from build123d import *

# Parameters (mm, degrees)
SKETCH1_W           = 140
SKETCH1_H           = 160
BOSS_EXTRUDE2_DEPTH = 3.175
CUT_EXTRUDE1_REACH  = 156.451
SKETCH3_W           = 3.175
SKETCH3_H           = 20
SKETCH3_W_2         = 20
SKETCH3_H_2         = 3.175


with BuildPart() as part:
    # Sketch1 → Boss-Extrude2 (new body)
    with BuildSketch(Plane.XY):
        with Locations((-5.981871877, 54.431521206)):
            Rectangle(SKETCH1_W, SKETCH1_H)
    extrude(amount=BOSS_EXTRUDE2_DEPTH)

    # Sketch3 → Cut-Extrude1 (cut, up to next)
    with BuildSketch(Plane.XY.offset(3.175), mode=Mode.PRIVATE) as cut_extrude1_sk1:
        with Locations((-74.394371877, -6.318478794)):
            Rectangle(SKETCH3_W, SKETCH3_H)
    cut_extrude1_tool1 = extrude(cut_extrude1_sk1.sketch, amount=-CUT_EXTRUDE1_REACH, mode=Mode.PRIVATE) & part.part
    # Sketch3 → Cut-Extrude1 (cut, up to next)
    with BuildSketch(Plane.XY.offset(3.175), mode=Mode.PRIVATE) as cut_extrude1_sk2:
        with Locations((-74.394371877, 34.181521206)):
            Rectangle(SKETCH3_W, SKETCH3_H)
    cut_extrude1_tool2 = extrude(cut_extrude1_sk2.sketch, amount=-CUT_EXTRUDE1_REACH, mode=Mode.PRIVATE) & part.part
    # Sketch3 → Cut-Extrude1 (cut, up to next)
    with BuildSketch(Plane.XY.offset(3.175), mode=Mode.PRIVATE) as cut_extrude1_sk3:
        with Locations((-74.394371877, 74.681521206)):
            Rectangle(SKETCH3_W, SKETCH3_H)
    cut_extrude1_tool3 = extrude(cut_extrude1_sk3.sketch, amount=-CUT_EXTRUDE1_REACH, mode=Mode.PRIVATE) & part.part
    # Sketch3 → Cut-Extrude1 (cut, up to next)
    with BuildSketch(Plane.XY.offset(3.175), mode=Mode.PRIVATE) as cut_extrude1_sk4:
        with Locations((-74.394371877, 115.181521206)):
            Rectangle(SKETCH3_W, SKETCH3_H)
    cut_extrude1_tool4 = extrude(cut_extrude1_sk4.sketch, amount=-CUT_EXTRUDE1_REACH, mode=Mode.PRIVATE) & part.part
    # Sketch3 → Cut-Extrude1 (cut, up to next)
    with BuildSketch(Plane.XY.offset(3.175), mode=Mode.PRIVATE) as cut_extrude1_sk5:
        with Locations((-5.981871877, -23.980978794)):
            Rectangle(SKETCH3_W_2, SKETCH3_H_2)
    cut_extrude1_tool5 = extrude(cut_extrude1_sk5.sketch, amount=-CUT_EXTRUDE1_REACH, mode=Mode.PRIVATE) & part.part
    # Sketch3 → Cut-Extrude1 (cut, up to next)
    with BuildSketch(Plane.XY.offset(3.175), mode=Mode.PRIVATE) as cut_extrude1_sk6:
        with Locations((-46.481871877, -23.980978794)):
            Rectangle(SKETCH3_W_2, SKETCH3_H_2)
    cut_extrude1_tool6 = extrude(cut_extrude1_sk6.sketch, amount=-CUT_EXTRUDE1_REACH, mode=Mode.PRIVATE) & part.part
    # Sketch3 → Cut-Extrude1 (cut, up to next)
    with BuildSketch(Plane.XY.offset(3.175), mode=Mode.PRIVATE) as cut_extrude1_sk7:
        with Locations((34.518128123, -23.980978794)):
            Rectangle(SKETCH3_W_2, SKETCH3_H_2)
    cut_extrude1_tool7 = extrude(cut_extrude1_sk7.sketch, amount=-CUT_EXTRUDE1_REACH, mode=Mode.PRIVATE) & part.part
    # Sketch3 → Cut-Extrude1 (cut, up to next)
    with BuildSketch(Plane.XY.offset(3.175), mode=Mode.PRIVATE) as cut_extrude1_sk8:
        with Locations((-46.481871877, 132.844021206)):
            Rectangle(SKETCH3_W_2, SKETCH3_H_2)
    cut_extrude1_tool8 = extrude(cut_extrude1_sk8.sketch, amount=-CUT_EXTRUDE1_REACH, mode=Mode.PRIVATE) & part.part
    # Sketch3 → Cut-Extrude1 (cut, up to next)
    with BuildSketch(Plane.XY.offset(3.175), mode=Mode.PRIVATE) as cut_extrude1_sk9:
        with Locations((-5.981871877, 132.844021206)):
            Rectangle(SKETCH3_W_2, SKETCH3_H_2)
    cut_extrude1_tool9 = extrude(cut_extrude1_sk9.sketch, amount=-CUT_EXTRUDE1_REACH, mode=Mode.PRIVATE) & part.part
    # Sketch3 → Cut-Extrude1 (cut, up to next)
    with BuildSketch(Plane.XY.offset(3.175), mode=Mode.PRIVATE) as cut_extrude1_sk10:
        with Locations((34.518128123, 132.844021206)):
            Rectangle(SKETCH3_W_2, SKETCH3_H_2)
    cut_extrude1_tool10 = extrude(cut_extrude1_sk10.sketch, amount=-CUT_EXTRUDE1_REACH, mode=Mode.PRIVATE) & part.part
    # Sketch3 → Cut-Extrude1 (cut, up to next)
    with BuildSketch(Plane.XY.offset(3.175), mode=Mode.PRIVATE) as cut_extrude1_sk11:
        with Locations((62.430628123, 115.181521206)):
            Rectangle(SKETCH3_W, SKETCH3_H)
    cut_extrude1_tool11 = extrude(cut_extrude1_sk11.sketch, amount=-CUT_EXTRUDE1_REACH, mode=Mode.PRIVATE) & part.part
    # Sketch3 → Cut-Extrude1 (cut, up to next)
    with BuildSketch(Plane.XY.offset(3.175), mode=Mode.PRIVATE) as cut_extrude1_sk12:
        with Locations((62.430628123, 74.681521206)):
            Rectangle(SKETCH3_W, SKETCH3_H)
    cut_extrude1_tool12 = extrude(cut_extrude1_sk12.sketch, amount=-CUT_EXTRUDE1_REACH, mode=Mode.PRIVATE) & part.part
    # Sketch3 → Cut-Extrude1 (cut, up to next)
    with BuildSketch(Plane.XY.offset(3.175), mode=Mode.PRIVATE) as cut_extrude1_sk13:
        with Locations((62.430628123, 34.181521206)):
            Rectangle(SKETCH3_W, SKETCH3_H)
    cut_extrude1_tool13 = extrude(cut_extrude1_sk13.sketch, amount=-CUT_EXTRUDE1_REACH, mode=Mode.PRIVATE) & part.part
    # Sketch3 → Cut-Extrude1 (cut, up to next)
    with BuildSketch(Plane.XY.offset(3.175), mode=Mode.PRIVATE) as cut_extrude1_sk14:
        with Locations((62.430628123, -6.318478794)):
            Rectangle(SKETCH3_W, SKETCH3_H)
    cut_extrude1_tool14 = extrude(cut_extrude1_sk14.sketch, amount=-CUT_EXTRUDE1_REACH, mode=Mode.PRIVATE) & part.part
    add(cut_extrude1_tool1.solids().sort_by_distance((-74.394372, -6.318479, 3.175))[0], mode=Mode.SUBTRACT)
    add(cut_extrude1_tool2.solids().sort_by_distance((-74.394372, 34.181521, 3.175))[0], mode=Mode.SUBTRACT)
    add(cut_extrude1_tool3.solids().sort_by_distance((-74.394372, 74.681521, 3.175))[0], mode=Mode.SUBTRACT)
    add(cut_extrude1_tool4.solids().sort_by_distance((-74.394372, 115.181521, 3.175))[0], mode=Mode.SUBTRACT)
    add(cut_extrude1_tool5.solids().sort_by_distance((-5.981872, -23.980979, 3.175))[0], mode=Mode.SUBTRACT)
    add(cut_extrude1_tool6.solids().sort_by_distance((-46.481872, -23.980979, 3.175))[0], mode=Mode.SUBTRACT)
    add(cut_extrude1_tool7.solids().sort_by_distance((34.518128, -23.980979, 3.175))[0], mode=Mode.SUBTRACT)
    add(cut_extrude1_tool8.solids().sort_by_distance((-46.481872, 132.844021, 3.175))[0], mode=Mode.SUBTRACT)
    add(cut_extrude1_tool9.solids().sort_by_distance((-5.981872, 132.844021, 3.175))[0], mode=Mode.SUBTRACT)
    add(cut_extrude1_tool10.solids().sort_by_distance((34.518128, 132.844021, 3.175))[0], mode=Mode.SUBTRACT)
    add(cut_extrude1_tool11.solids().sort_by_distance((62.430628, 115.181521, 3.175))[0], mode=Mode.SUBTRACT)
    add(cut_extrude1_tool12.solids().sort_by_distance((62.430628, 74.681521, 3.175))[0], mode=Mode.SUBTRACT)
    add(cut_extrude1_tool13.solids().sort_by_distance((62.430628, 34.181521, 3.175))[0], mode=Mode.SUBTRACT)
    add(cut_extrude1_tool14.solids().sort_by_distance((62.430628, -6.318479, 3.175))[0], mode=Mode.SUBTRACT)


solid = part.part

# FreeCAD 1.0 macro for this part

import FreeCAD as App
import Part
import Sketcher
from FreeCAD import Vector
Q = App.Units.Quantity


def add_polygon(sketch, points):
    """Adds a closed chain of lines whose ends are joined by coincident constraints."""
    first, n = sketch.GeometryCount, len(points)
    for a, b in zip(points, points[1:] + points[:1]):
        sketch.addGeometry(Part.LineSegment(App.Vector(*a, 0), App.Vector(*b, 0)), False)
    for i in range(n):
        sketch.addConstraint(Sketcher.Constraint("Coincident", first + i, 2, first + (i + 1) % n, 1))

doc = App.newDocument("Part")
body = doc.addObject("PartDesign::Body", "Body")

# Sketch on XY plane
sketch1 = body.newObject("Sketcher::SketchObject", "Sketch")
sketch1.AttachmentSupport = (doc.getObject("XY_Plane"), [""])
sketch1.MapMode = "FlatFace"
add_polygon(sketch1, [(-75.981872, 134.431521), (-75.981872, -25.568479), (64.018128, -25.568479), (64.018128, 134.431521)])  # lines 0-3
sketch1.addConstraint(Sketcher.Constraint("Vertical", 0))
sketch1.addConstraint(Sketcher.Constraint("Horizontal", 1))
sketch1.addConstraint(Sketcher.Constraint("Vertical", 2))
sketch1.addConstraint(Sketcher.Constraint("Horizontal", 3))
sketch1.addConstraint(Sketcher.Constraint("DistanceX", 1, 1, 1, 2, Q("140 mm")))
sketch1.addConstraint(Sketcher.Constraint("DistanceY", 0, 2, 0, 1, Q("160 mm")))
sketch1.addConstraint(Sketcher.Constraint("DistanceX", 0, 2, -1, 1, Q("75.981872 mm")))
sketch1.addConstraint(Sketcher.Constraint("DistanceY", 0, 2, -1, 1, Q("25.568479 mm")))
pad1 = body.newObject("PartDesign::Pad", "Pad")
pad1.Profile = sketch1
pad1.Length = 3.175

# Sketch on XY plane
sketch2 = body.newObject("Sketcher::SketchObject", "Sketch001")
sketch2.AttachmentSupport = (doc.getObject("XY_Plane"), [""])
sketch2.MapMode = "FlatFace"
sketch2.AttachmentOffset = App.Placement(Vector(0, 0, 3.175), App.Rotation())
add_polygon(sketch2, [(-75.981872, 3.681521), (-75.981872, -16.318479), (-72.806872, -16.318479), (-72.806872, 3.681521)])  # lines 0-3
sketch2.addConstraint(Sketcher.Constraint("Vertical", 0))
sketch2.addConstraint(Sketcher.Constraint("Horizontal", 1))
sketch2.addConstraint(Sketcher.Constraint("Vertical", 2))
sketch2.addConstraint(Sketcher.Constraint("Horizontal", 3))
sketch2.addConstraint(Sketcher.Constraint("DistanceY", 0, 2, 0, 1, Q("20 mm")))
sketch2.addConstraint(Sketcher.Constraint("DistanceX", 1, 1, 1, 2, Q("3.175 mm")))
sketch2.addConstraint(Sketcher.Constraint("DistanceX", 0, 2, -1, 1, Q("75.981872 mm")))
sketch2.addConstraint(Sketcher.Constraint("DistanceY", 0, 2, -1, 1, Q("16.318479 mm")))
pocket1 = body.newObject("PartDesign::Pocket", "Pocket")
pocket1.Profile = sketch2
pocket1.Type = "UpToFirst"

# Sketch on XY plane
sketch3 = body.newObject("Sketcher::SketchObject", "Sketch002")
sketch3.AttachmentSupport = (doc.getObject("XY_Plane"), [""])
sketch3.MapMode = "FlatFace"
sketch3.AttachmentOffset = App.Placement(Vector(0, 0, 3.175), App.Rotation())
add_polygon(sketch3, [(-75.981872, 44.181521), (-75.981872, 24.181521), (-72.806872, 24.181521), (-72.806872, 44.181521)])  # lines 0-3
sketch3.addConstraint(Sketcher.Constraint("Vertical", 0))
sketch3.addConstraint(Sketcher.Constraint("Horizontal", 1))
sketch3.addConstraint(Sketcher.Constraint("Vertical", 2))
sketch3.addConstraint(Sketcher.Constraint("Horizontal", 3))
sketch3.addConstraint(Sketcher.Constraint("DistanceY", 0, 2, 0, 1, Q("20 mm")))
sketch3.addConstraint(Sketcher.Constraint("DistanceX", 1, 1, 1, 2, Q("3.175 mm")))
sketch3.addConstraint(Sketcher.Constraint("DistanceX", 0, 2, -1, 1, Q("75.981872 mm")))
sketch3.addConstraint(Sketcher.Constraint("DistanceY", -1, 1, 0, 2, Q("24.181521 mm")))
pocket2 = body.newObject("PartDesign::Pocket", "Pocket001")
pocket2.Profile = sketch3
pocket2.Type = "UpToFirst"

# Sketch on XY plane
sketch4 = body.newObject("Sketcher::SketchObject", "Sketch003")
sketch4.AttachmentSupport = (doc.getObject("XY_Plane"), [""])
sketch4.MapMode = "FlatFace"
sketch4.AttachmentOffset = App.Placement(Vector(0, 0, 3.175), App.Rotation())
add_polygon(sketch4, [(-75.981872, 84.681521), (-75.981872, 64.681521), (-72.806872, 64.681521), (-72.806872, 84.681521)])  # lines 0-3
sketch4.addConstraint(Sketcher.Constraint("Vertical", 0))
sketch4.addConstraint(Sketcher.Constraint("Horizontal", 1))
sketch4.addConstraint(Sketcher.Constraint("Vertical", 2))
sketch4.addConstraint(Sketcher.Constraint("Horizontal", 3))
sketch4.addConstraint(Sketcher.Constraint("DistanceY", 0, 2, 0, 1, Q("20 mm")))
sketch4.addConstraint(Sketcher.Constraint("DistanceX", 1, 1, 1, 2, Q("3.175 mm")))
sketch4.addConstraint(Sketcher.Constraint("DistanceX", 0, 2, -1, 1, Q("75.981872 mm")))
sketch4.addConstraint(Sketcher.Constraint("DistanceY", -1, 1, 0, 2, Q("64.681521 mm")))
pocket3 = body.newObject("PartDesign::Pocket", "Pocket002")
pocket3.Profile = sketch4
pocket3.Type = "UpToFirst"

# Sketch on XY plane
sketch5 = body.newObject("Sketcher::SketchObject", "Sketch004")
sketch5.AttachmentSupport = (doc.getObject("XY_Plane"), [""])
sketch5.MapMode = "FlatFace"
sketch5.AttachmentOffset = App.Placement(Vector(0, 0, 3.175), App.Rotation())
add_polygon(sketch5, [(-75.981872, 125.181521), (-75.981872, 105.181521), (-72.806872, 105.181521), (-72.806872, 125.181521)])  # lines 0-3
sketch5.addConstraint(Sketcher.Constraint("Vertical", 0))
sketch5.addConstraint(Sketcher.Constraint("Horizontal", 1))
sketch5.addConstraint(Sketcher.Constraint("Vertical", 2))
sketch5.addConstraint(Sketcher.Constraint("Horizontal", 3))
sketch5.addConstraint(Sketcher.Constraint("DistanceY", 0, 2, 0, 1, Q("20 mm")))
sketch5.addConstraint(Sketcher.Constraint("DistanceX", 1, 1, 1, 2, Q("3.175 mm")))
sketch5.addConstraint(Sketcher.Constraint("DistanceX", 0, 2, -1, 1, Q("75.981872 mm")))
sketch5.addConstraint(Sketcher.Constraint("DistanceY", -1, 1, 0, 2, Q("105.181521 mm")))
pocket4 = body.newObject("PartDesign::Pocket", "Pocket003")
pocket4.Profile = sketch5
pocket4.Type = "UpToFirst"

# Sketch on XY plane
sketch6 = body.newObject("Sketcher::SketchObject", "Sketch005")
sketch6.AttachmentSupport = (doc.getObject("XY_Plane"), [""])
sketch6.MapMode = "FlatFace"
sketch6.AttachmentOffset = App.Placement(Vector(0, 0, 3.175), App.Rotation())
add_polygon(sketch6, [(-15.981872, -22.393479), (-15.981872, -25.568479), (4.018128, -25.568479), (4.018128, -22.393479)])  # lines 0-3
sketch6.addConstraint(Sketcher.Constraint("Vertical", 0))
sketch6.addConstraint(Sketcher.Constraint("Horizontal", 1))
sketch6.addConstraint(Sketcher.Constraint("Vertical", 2))
sketch6.addConstraint(Sketcher.Constraint("Horizontal", 3))
sketch6.addConstraint(Sketcher.Constraint("DistanceX", 1, 1, 1, 2, Q("20 mm")))
sketch6.addConstraint(Sketcher.Constraint("DistanceY", 0, 2, 0, 1, Q("3.175 mm")))
sketch6.addConstraint(Sketcher.Constraint("DistanceX", 0, 2, -1, 1, Q("15.981872 mm")))
sketch6.addConstraint(Sketcher.Constraint("DistanceY", 0, 2, -1, 1, Q("25.568479 mm")))
pocket5 = body.newObject("PartDesign::Pocket", "Pocket004")
pocket5.Profile = sketch6
pocket5.Type = "UpToFirst"

# Sketch on XY plane
sketch7 = body.newObject("Sketcher::SketchObject", "Sketch006")
sketch7.AttachmentSupport = (doc.getObject("XY_Plane"), [""])
sketch7.MapMode = "FlatFace"
sketch7.AttachmentOffset = App.Placement(Vector(0, 0, 3.175), App.Rotation())
add_polygon(sketch7, [(-56.481872, -22.393479), (-56.481872, -25.568479), (-36.481872, -25.568479), (-36.481872, -22.393479)])  # lines 0-3
sketch7.addConstraint(Sketcher.Constraint("Vertical", 0))
sketch7.addConstraint(Sketcher.Constraint("Horizontal", 1))
sketch7.addConstraint(Sketcher.Constraint("Vertical", 2))
sketch7.addConstraint(Sketcher.Constraint("Horizontal", 3))
sketch7.addConstraint(Sketcher.Constraint("DistanceX", 1, 1, 1, 2, Q("20 mm")))
sketch7.addConstraint(Sketcher.Constraint("DistanceY", 0, 2, 0, 1, Q("3.175 mm")))
sketch7.addConstraint(Sketcher.Constraint("DistanceX", 0, 2, -1, 1, Q("56.481872 mm")))
sketch7.addConstraint(Sketcher.Constraint("DistanceY", 0, 2, -1, 1, Q("25.568479 mm")))
pocket6 = body.newObject("PartDesign::Pocket", "Pocket005")
pocket6.Profile = sketch7
pocket6.Type = "UpToFirst"

# Sketch on XY plane
sketch8 = body.newObject("Sketcher::SketchObject", "Sketch007")
sketch8.AttachmentSupport = (doc.getObject("XY_Plane"), [""])
sketch8.MapMode = "FlatFace"
sketch8.AttachmentOffset = App.Placement(Vector(0, 0, 3.175), App.Rotation())
add_polygon(sketch8, [(24.518128, -22.393479), (24.518128, -25.568479), (44.518128, -25.568479), (44.518128, -22.393479)])  # lines 0-3
sketch8.addConstraint(Sketcher.Constraint("Vertical", 0))
sketch8.addConstraint(Sketcher.Constraint("Horizontal", 1))
sketch8.addConstraint(Sketcher.Constraint("Vertical", 2))
sketch8.addConstraint(Sketcher.Constraint("Horizontal", 3))
sketch8.addConstraint(Sketcher.Constraint("DistanceX", 1, 1, 1, 2, Q("20 mm")))
sketch8.addConstraint(Sketcher.Constraint("DistanceY", 0, 2, 0, 1, Q("3.175 mm")))
sketch8.addConstraint(Sketcher.Constraint("DistanceX", -1, 1, 0, 2, Q("24.518128 mm")))
sketch8.addConstraint(Sketcher.Constraint("DistanceY", 0, 2, -1, 1, Q("25.568479 mm")))
pocket7 = body.newObject("PartDesign::Pocket", "Pocket006")
pocket7.Profile = sketch8
pocket7.Type = "UpToFirst"

# Sketch on XY plane
sketch9 = body.newObject("Sketcher::SketchObject", "Sketch008")
sketch9.AttachmentSupport = (doc.getObject("XY_Plane"), [""])
sketch9.MapMode = "FlatFace"
sketch9.AttachmentOffset = App.Placement(Vector(0, 0, 3.175), App.Rotation())
add_polygon(sketch9, [(-56.481872, 134.431521), (-56.481872, 131.256521), (-36.481872, 131.256521), (-36.481872, 134.431521)])  # lines 0-3
sketch9.addConstraint(Sketcher.Constraint("Vertical", 0))
sketch9.addConstraint(Sketcher.Constraint("Horizontal", 1))
sketch9.addConstraint(Sketcher.Constraint("Vertical", 2))
sketch9.addConstraint(Sketcher.Constraint("Horizontal", 3))
sketch9.addConstraint(Sketcher.Constraint("DistanceX", 1, 1, 1, 2, Q("20 mm")))
sketch9.addConstraint(Sketcher.Constraint("DistanceY", 0, 2, 0, 1, Q("3.175 mm")))
sketch9.addConstraint(Sketcher.Constraint("DistanceX", 0, 2, -1, 1, Q("56.481872 mm")))
sketch9.addConstraint(Sketcher.Constraint("DistanceY", -1, 1, 0, 2, Q("131.256521 mm")))
pocket8 = body.newObject("PartDesign::Pocket", "Pocket007")
pocket8.Profile = sketch9
pocket8.Type = "UpToFirst"

# Sketch on XY plane
sketch10 = body.newObject("Sketcher::SketchObject", "Sketch009")
sketch10.AttachmentSupport = (doc.getObject("XY_Plane"), [""])
sketch10.MapMode = "FlatFace"
sketch10.AttachmentOffset = App.Placement(Vector(0, 0, 3.175), App.Rotation())
add_polygon(sketch10, [(-15.981872, 134.431521), (-15.981872, 131.256521), (4.018128, 131.256521), (4.018128, 134.431521)])  # lines 0-3
sketch10.addConstraint(Sketcher.Constraint("Vertical", 0))
sketch10.addConstraint(Sketcher.Constraint("Horizontal", 1))
sketch10.addConstraint(Sketcher.Constraint("Vertical", 2))
sketch10.addConstraint(Sketcher.Constraint("Horizontal", 3))
sketch10.addConstraint(Sketcher.Constraint("DistanceX", 1, 1, 1, 2, Q("20 mm")))
sketch10.addConstraint(Sketcher.Constraint("DistanceY", 0, 2, 0, 1, Q("3.175 mm")))
sketch10.addConstraint(Sketcher.Constraint("DistanceX", 0, 2, -1, 1, Q("15.981872 mm")))
sketch10.addConstraint(Sketcher.Constraint("DistanceY", -1, 1, 0, 2, Q("131.256521 mm")))
pocket9 = body.newObject("PartDesign::Pocket", "Pocket008")
pocket9.Profile = sketch10
pocket9.Type = "UpToFirst"

# Sketch on XY plane
sketch11 = body.newObject("Sketcher::SketchObject", "Sketch010")
sketch11.AttachmentSupport = (doc.getObject("XY_Plane"), [""])
sketch11.MapMode = "FlatFace"
sketch11.AttachmentOffset = App.Placement(Vector(0, 0, 3.175), App.Rotation())
add_polygon(sketch11, [(24.518128, 134.431521), (24.518128, 131.256521), (44.518128, 131.256521), (44.518128, 134.431521)])  # lines 0-3
sketch11.addConstraint(Sketcher.Constraint("Vertical", 0))
sketch11.addConstraint(Sketcher.Constraint("Horizontal", 1))
sketch11.addConstraint(Sketcher.Constraint("Vertical", 2))
sketch11.addConstraint(Sketcher.Constraint("Horizontal", 3))
sketch11.addConstraint(Sketcher.Constraint("DistanceX", 1, 1, 1, 2, Q("20 mm")))
sketch11.addConstraint(Sketcher.Constraint("DistanceY", 0, 2, 0, 1, Q("3.175 mm")))
sketch11.addConstraint(Sketcher.Constraint("DistanceX", -1, 1, 0, 2, Q("24.518128 mm")))
sketch11.addConstraint(Sketcher.Constraint("DistanceY", -1, 1, 0, 2, Q("131.256521 mm")))
pocket10 = body.newObject("PartDesign::Pocket", "Pocket009")
pocket10.Profile = sketch11
pocket10.Type = "UpToFirst"

# Sketch on XY plane
sketch12 = body.newObject("Sketcher::SketchObject", "Sketch011")
sketch12.AttachmentSupport = (doc.getObject("XY_Plane"), [""])
sketch12.MapMode = "FlatFace"
sketch12.AttachmentOffset = App.Placement(Vector(0, 0, 3.175), App.Rotation())
add_polygon(sketch12, [(60.843128, 125.181521), (60.843128, 105.181521), (64.018128, 105.181521), (64.018128, 125.181521)])  # lines 0-3
sketch12.addConstraint(Sketcher.Constraint("Vertical", 0))
sketch12.addConstraint(Sketcher.Constraint("Horizontal", 1))
sketch12.addConstraint(Sketcher.Constraint("Vertical", 2))
sketch12.addConstraint(Sketcher.Constraint("Horizontal", 3))
sketch12.addConstraint(Sketcher.Constraint("DistanceY", 0, 2, 0, 1, Q("20 mm")))
sketch12.addConstraint(Sketcher.Constraint("DistanceX", 1, 1, 1, 2, Q("3.175 mm")))
sketch12.addConstraint(Sketcher.Constraint("DistanceX", -1, 1, 0, 2, Q("60.843128 mm")))
sketch12.addConstraint(Sketcher.Constraint("DistanceY", -1, 1, 0, 2, Q("105.181521 mm")))
pocket11 = body.newObject("PartDesign::Pocket", "Pocket010")
pocket11.Profile = sketch12
pocket11.Type = "UpToFirst"

# Sketch on XY plane
sketch13 = body.newObject("Sketcher::SketchObject", "Sketch012")
sketch13.AttachmentSupport = (doc.getObject("XY_Plane"), [""])
sketch13.MapMode = "FlatFace"
sketch13.AttachmentOffset = App.Placement(Vector(0, 0, 3.175), App.Rotation())
add_polygon(sketch13, [(60.843128, 84.681521), (60.843128, 64.681521), (64.018128, 64.681521), (64.018128, 84.681521)])  # lines 0-3
sketch13.addConstraint(Sketcher.Constraint("Vertical", 0))
sketch13.addConstraint(Sketcher.Constraint("Horizontal", 1))
sketch13.addConstraint(Sketcher.Constraint("Vertical", 2))
sketch13.addConstraint(Sketcher.Constraint("Horizontal", 3))
sketch13.addConstraint(Sketcher.Constraint("DistanceY", 0, 2, 0, 1, Q("20 mm")))
sketch13.addConstraint(Sketcher.Constraint("DistanceX", 1, 1, 1, 2, Q("3.175 mm")))
sketch13.addConstraint(Sketcher.Constraint("DistanceX", -1, 1, 0, 2, Q("60.843128 mm")))
sketch13.addConstraint(Sketcher.Constraint("DistanceY", -1, 1, 0, 2, Q("64.681521 mm")))
pocket12 = body.newObject("PartDesign::Pocket", "Pocket011")
pocket12.Profile = sketch13
pocket12.Type = "UpToFirst"

# Sketch on XY plane
sketch14 = body.newObject("Sketcher::SketchObject", "Sketch013")
sketch14.AttachmentSupport = (doc.getObject("XY_Plane"), [""])
sketch14.MapMode = "FlatFace"
sketch14.AttachmentOffset = App.Placement(Vector(0, 0, 3.175), App.Rotation())
add_polygon(sketch14, [(60.843128, 44.181521), (60.843128, 24.181521), (64.018128, 24.181521), (64.018128, 44.181521)])  # lines 0-3
sketch14.addConstraint(Sketcher.Constraint("Vertical", 0))
sketch14.addConstraint(Sketcher.Constraint("Horizontal", 1))
sketch14.addConstraint(Sketcher.Constraint("Vertical", 2))
sketch14.addConstraint(Sketcher.Constraint("Horizontal", 3))
sketch14.addConstraint(Sketcher.Constraint("DistanceY", 0, 2, 0, 1, Q("20 mm")))
sketch14.addConstraint(Sketcher.Constraint("DistanceX", 1, 1, 1, 2, Q("3.175 mm")))
sketch14.addConstraint(Sketcher.Constraint("DistanceX", -1, 1, 0, 2, Q("60.843128 mm")))
sketch14.addConstraint(Sketcher.Constraint("DistanceY", -1, 1, 0, 2, Q("24.181521 mm")))
pocket13 = body.newObject("PartDesign::Pocket", "Pocket012")
pocket13.Profile = sketch14
pocket13.Type = "UpToFirst"

# Sketch on XY plane
sketch15 = body.newObject("Sketcher::SketchObject", "Sketch014")
sketch15.AttachmentSupport = (doc.getObject("XY_Plane"), [""])
sketch15.MapMode = "FlatFace"
sketch15.AttachmentOffset = App.Placement(Vector(0, 0, 3.175), App.Rotation())
add_polygon(sketch15, [(60.843128, 3.681521), (60.843128, -16.318479), (64.018128, -16.318479), (64.018128, 3.681521)])  # lines 0-3
sketch15.addConstraint(Sketcher.Constraint("Vertical", 0))
sketch15.addConstraint(Sketcher.Constraint("Horizontal", 1))
sketch15.addConstraint(Sketcher.Constraint("Vertical", 2))
sketch15.addConstraint(Sketcher.Constraint("Horizontal", 3))
sketch15.addConstraint(Sketcher.Constraint("DistanceY", 0, 2, 0, 1, Q("20 mm")))
sketch15.addConstraint(Sketcher.Constraint("DistanceX", 1, 1, 1, 2, Q("3.175 mm")))
sketch15.addConstraint(Sketcher.Constraint("DistanceX", -1, 1, 0, 2, Q("60.843128 mm")))
sketch15.addConstraint(Sketcher.Constraint("DistanceY", 0, 2, -1, 1, Q("16.318479 mm")))
pocket14 = body.newObject("PartDesign::Pocket", "Pocket013")
pocket14.Profile = sketch15
pocket14.Type = "UpToFirst"

doc.recompute()
